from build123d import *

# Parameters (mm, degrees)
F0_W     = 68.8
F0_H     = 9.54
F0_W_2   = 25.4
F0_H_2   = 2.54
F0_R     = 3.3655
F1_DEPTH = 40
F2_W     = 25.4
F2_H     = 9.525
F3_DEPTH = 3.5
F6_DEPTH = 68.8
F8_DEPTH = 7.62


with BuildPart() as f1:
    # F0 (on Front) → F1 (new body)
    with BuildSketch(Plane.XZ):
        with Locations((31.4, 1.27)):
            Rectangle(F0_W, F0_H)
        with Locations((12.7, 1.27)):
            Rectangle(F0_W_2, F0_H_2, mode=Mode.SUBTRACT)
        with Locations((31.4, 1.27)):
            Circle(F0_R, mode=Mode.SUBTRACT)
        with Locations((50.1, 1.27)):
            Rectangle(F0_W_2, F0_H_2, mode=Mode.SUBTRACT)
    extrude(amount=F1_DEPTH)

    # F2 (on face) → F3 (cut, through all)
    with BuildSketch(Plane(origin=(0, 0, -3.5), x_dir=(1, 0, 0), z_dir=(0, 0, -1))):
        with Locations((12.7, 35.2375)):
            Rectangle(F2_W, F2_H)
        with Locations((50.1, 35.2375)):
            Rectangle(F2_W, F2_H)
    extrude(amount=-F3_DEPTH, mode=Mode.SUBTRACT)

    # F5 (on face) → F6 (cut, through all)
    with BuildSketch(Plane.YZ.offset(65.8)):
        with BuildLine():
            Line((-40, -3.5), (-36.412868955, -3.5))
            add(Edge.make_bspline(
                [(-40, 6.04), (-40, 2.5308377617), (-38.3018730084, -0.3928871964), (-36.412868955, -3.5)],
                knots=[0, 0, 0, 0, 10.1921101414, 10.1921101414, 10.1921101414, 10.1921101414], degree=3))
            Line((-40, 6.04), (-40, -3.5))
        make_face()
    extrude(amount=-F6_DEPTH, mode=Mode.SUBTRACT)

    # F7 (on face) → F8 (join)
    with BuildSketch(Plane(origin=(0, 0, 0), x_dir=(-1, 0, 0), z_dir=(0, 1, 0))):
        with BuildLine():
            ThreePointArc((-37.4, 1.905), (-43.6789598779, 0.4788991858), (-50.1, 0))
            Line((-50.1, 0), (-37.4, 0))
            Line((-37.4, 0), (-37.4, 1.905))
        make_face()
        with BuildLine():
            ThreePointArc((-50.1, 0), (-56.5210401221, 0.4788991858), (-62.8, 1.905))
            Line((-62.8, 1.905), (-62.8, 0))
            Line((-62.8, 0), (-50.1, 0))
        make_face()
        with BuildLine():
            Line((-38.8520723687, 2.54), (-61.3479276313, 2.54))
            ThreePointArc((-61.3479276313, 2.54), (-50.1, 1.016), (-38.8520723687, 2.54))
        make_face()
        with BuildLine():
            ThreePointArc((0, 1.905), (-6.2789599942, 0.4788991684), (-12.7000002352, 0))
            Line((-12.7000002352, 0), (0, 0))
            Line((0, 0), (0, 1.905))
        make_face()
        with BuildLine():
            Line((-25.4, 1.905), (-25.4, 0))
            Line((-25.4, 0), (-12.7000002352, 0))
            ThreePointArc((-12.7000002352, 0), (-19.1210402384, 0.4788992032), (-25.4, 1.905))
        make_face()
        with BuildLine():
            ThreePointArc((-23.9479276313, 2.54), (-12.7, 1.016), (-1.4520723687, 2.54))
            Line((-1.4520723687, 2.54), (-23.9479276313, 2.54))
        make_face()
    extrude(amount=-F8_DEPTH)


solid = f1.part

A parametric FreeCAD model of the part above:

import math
import FreeCAD as App
import Part
import Sketcher

V = App.Vector
Q = App.Units.Quantity

doc = App.newDocument("Part")
params = doc.addObject("Spreadsheet::Sheet", "Params")
for row, (alias, value) in enumerate([
    ("sketch1_width", "1 in"),
    ("sketch1_diameter", "0.265 in"),
    ("sketch1_height", "0.1 in"),
    ("pad1_length", "40 mm"),
    ("sketch2_width", "1 in"),
    ("sketch2_height", "0.375 in"),
    ("pocket1_length", "3.5 mm"),
    ("sketch4_width", "0.5 in"),
    ("sketch4_height", "0.075 in"),
    ("pad2_length", "0.3 in"),
], start=1):
    params.set(f"A{row}", alias)
    params.set(f"B{row}", "=" + value)
    params.setAlias(f"B{row}", alias)

body = doc.addObject("PartDesign::Body", "Body")

# Sketch on XZ plane
sketch1 = body.newObject("Sketcher::SketchObject", "Sketch")
sketch1.AttachmentSupport = (doc.getObject("XZ_Plane"), [""])
sketch1.MapMode = "FlatFace"
sketch1.addGeometry([
    Part.LineSegment(V(-3, 6.04, 0), V(-3, -3.5, 0)),  # 0
    Part.LineSegment(V(-3, -3.5, 0), V(65.8, -3.5, 0)),  # 1
    Part.LineSegment(V(65.8, -3.5, 0), V(65.8, 6.04, 0)),  # 2
    Part.LineSegment(V(65.8, 6.04, 0), V(-3, 6.04, 0)),  # 3
    Part.LineSegment(V(25.4, 0, 0), V(0, 0, 0)),  # 4
    Part.LineSegment(V(0, 0, 0), V(0, 2.54, 0)),  # 5
    Part.LineSegment(V(0, 2.54, 0), V(25.4, 2.54, 0)),  # 6
    Part.LineSegment(V(25.4, 2.54, 0), V(25.4, 0, 0)),  # 7
    Part.Circle(V(31.4, 1.27, 0), V(0, 0, 1), 3.3655),  # 8
    Part.LineSegment(V(62.8, 0, 0), V(37.4, 0, 0)),  # 9
    Part.LineSegment(V(37.4, 0, 0), V(37.4, 2.54, 0)),  # 10
    Part.LineSegment(V(37.4, 2.54, 0), V(62.8, 2.54, 0)),  # 11
    Part.LineSegment(V(62.8, 2.54, 0), V(62.8, 0, 0)),  # 12
], False)
sketch1.addConstraint([
    Sketcher.Constraint("Coincident", 0, 2, 1, 1),
    Sketcher.Constraint("Coincident", 1, 2, 2, 1),
    Sketcher.Constraint("Coincident", 2, 2, 3, 1),
    Sketcher.Constraint("Coincident", 3, 2, 0, 1),
    Sketcher.Constraint("Coincident", 4, 2, 5, 1),
    Sketcher.Constraint("Coincident", 5, 2, 6, 1),
    Sketcher.Constraint("Coincident", 6, 2, 7, 1),
    Sketcher.Constraint("Coincident", 7, 2, 4, 1),
    Sketcher.Constraint("Coincident", 9, 2, 10, 1),
    Sketcher.Constraint("Coincident", 10, 2, 11, 1),
    Sketcher.Constraint("Coincident", 11, 2, 12, 1),
    Sketcher.Constraint("Coincident", 12, 2, 9, 1),
    Sketcher.Constraint("Vertical", 0),
    Sketcher.Constraint("Horizontal", 1),
    Sketcher.Constraint("Vertical", 2),
    Sketcher.Constraint("Horizontal", 3),
    Sketcher.Constraint("Horizontal", 4),
    Sketcher.Constraint("Vertical", 5),
    Sketcher.Constraint("Horizontal", 6),
    Sketcher.Constraint("Vertical", 7),
    Sketcher.Constraint("Horizontal", 9),
    Sketcher.Constraint("Vertical", 10),
    Sketcher.Constraint("Horizontal", 11),
    Sketcher.Constraint("Vertical", 12),
    Sketcher.Constraint("Coincident", 4, 2, -1, 1),
    Sketcher.Constraint("PointOnObject", 9, 2, -1),
    Sketcher.Constraint("Horizontal", 6, 2, 10, 2),
    Sketcher.Constraint("Equal", 6, 9),
    Sketcher.Constraint("DistanceX", 4, 2, 4, 1, Q("1 in")),
    Sketcher.Constraint("Diameter", 8, Q("0.265 in")),
    Sketcher.Constraint("DistanceY", 5, 1, 5, 2, Q("0.1 in")),
    Sketcher.Constraint("DistanceY", -1, 1, 8, 3, Q("0.05 in")),
    Sketcher.Constraint("DistanceX", 1, 1, 1, 2, Q("68.8 mm")),
    Sketcher.Constraint("DistanceY", 0, 2, 0, 1, Q("9.54 mm")),
    Sketcher.Constraint("DistanceX", -1, 1, 8, 3, Q("31.4 mm")),
    Sketcher.Constraint("DistanceX", 0, 2, -1, 1, Q("3 mm")),
    Sketcher.Constraint("DistanceY", 0, 2, -1, 1, Q("3.5 mm")),
    Sketcher.Constraint("DistanceX", -1, 1, 9, 2, Q("37.4 mm")),
])
sketch1.setExpression("Constraints[28]", "Params.sketch1_width")
sketch1.setExpression("Constraints[29]", "Params.sketch1_diameter")
sketch1.setExpression("Constraints[30]", "Params.sketch1_height")
pad1 = body.newObject("PartDesign::Pad", "Pad")
pad1.Profile = sketch1
pad1.setExpression("Length", "Params.pad1_length")

# Sketch on XY plane
sketch2 = body.newObject("Sketcher::SketchObject", "Sketch001")
sketch2.AttachmentSupport = (doc.getObject("XY_Plane"), [""])
sketch2.MapMode = "FlatFace"
sketch2.AttachmentOffset = App.Placement(V(0, 0, -3.5), App.Rotation())
sketch2.addGeometry([
    Part.LineSegment(V(0, -40, 0), V(0, -30.475, 0)),  # 0
    Part.LineSegment(V(0, -30.475, 0), V(25.4, -30.475, 0)),  # 1
    Part.LineSegment(V(25.4, -30.475, 0), V(25.4, -40, 0)),  # 2
    Part.LineSegment(V(25.4, -40, 0), V(0, -40, 0)),  # 3
    Part.LineSegment(V(37.4, -40, 0), V(37.4, -30.475, 0)),  # 4
    Part.LineSegment(V(37.4, -30.475, 0), V(62.8, -30.475, 0)),  # 5
    Part.LineSegment(V(62.8, -30.475, 0), V(62.8, -40, 0)),  # 6
    Part.LineSegment(V(62.8, -40, 0), V(37.4, -40, 0)),  # 7
], False)
sketch2.addConstraint([
    Sketcher.Constraint("Coincident", 0, 2, 1, 1),
    Sketcher.Constraint("Coincident", 1, 2, 2, 1),
    Sketcher.Constraint("Coincident", 2, 2, 3, 1),
    Sketcher.Constraint("Coincident", 3, 2, 0, 1),
    Sketcher.Constraint("Coincident", 4, 2, 5, 1),
    Sketcher.Constraint("Coincident", 5, 2, 6, 1),
    Sketcher.Constraint("Coincident", 6, 2, 7, 1),
    Sketcher.Constraint("Coincident", 7, 2, 4, 1),
    Sketcher.Constraint("Vertical", 0),
    Sketcher.Constraint("Horizontal", 1),
    Sketcher.Constraint("Vertical", 2),
    Sketcher.Constraint("Horizontal", 3),
    Sketcher.Constraint("Vertical", 4),
    Sketcher.Constraint("Horizontal", 5),
    Sketcher.Constraint("Vertical", 6),
    Sketcher.Constraint("Horizontal", 7),
    Sketcher.Constraint("PointOnObject", 0, 2, -2),
    Sketcher.Constraint("Horizontal", 1, 2, 4, 2),
    Sketcher.Constraint("Horizontal", 3, 2, 6, 2),
    Sketcher.Constraint("Equal", 3, 5),
    Sketcher.Constraint("DistanceX", 1, 1, 1, 2, Q("1 in")),
    Sketcher.Constraint("DistanceY", 0, 1, 0, 2, Q("0.375 in")),
    Sketcher.Constraint("DistanceY", 0, 2, -1, 1, Q("30.475 mm")),
    Sketcher.Constraint("DistanceX", -1, 1, 4, 2, Q("37.4 mm")),
])
sketch2.setExpression("Constraints[20]", "Params.sketch2_width")
sketch2.setExpression("Constraints[21]", "Params.sketch2_height")
pocket1 = body.newObject("PartDesign::Pocket", "Pocket")
pocket1.Profile = sketch2
pocket1.setExpression("Length", "Params.pocket1_length")
pocket1.Reversed = True

# Sketch on YZ plane
sketch3 = body.newObject("Sketcher::SketchObject", "Sketch002")
sketch3.AttachmentSupport = (doc.getObject("YZ_Plane"), [""])
sketch3.MapMode = "FlatFace"
sketch3.AttachmentOffset = App.Placement(V(0, 0, 65.8), App.Rotation())
sketch3.addGeometry([
    Part.LineSegment(V(-40, -3.5, 0), V(-36.412869, -3.5, 0)),
    Part.BSplineCurve([V(-40, 6.04, 0), V(-40, 2.530838, 0), V(-38.301873, -0.392887, 0), V(-36.412869, -3.5, 0)], [4, 4], [0, 10.192110141], False, 3, [1, 1, 1, 1], False),
    Part.LineSegment(V(-40, 6.04, 0), V(-40, -3.5, 0)),
], False)
sketch3.addConstraint([
    Sketcher.Constraint("Block", 1),
    Sketcher.Constraint("Coincident", 0, 2, 1, 2),
    Sketcher.Constraint("Coincident", 1, 1, 2, 1),
    Sketcher.Constraint("Coincident", 2, 2, 0, 1),
    Sketcher.Constraint("Horizontal", 0),
    Sketcher.Constraint("Vertical", 2),
])
pocket2 = body.newObject("PartDesign::Pocket", "Pocket001")
pocket2.Profile = sketch3
pocket2.Type = "ThroughAll"

# Sketch on XZ plane
sketch4 = body.newObject("Sketcher::SketchObject", "Sketch003")
sketch4.AttachmentSupport = (doc.getObject("XZ_Plane"), [""])
sketch4.MapMode = "FlatFace"
sketch4.addGeometry([
    Part.ArcOfCircle(Part.Circle(V(50.1, 43.285833, 0), V(0, 0, 1), 43.285833), math.radians(-107.061531), math.radians(-90)),  # 0
    Part.LineSegment(V(50.1, 0, 0), V(37.4, 0, 0)),  # 1
    Part.LineSegment(V(37.4, 0, 0), V(37.4, 1.905, 0)),  # 2
    Part.ArcOfCircle(Part.Circle(V(50.1, 43.285833, 0), V(0, 0, 1), 43.285833), math.radians(-90), math.radians(-72.938469)),  # 3
    Part.LineSegment(V(62.8, 1.905, 0), V(62.8, 0, 0)),  # 4
    Part.LineSegment(V(62.8, 0, 0), V(50.1, 0, 0)),  # 5
    Part.LineSegment(V(38.852072, 2.54, 0), V(61.347928, 2.54, 0)),  # 6
    Part.ArcOfCircle(Part.Circle(V(50.1, 43.285833, 0), V(0, 0, 1), 42.269833), math.radians(-105.43222), math.radians(-74.56778)),  # 7
    Part.ArcOfCircle(Part.Circle(V(12.7, 43.285833, 0), V(0, 0, 1), 43.285833), math.radians(-107.061531), math.radians(-90)),  # 8
    Part.LineSegment(V(12.7, 0, 0), V(0, 0, 0)),  # 9
    Part.LineSegment(V(0, 0, 0), V(0, 1.905, 0)),  # 10
    Part.LineSegment(V(25.4, 1.905, 0), V(25.4, 0, 0)),  # 11
    Part.LineSegment(V(25.4, 0, 0), V(12.7, 0, 0)),  # 12
    Part.ArcOfCircle(Part.Circle(V(12.7, 43.285833, 0), V(0, 0, 1), 43.285833), math.radians(-90), math.radians(-72.938469)),  # 13
    Part.ArcOfCircle(Part.Circle(V(12.7, 43.285833, 0), V(0, 0, 1), 42.269833), math.radians(-105.43222), math.radians(-74.56778)),  # 14
    Part.LineSegment(V(1.452072, 2.54, 0), V(23.947928, 2.54, 0)),  # 15
], False)
sketch4.addConstraint([
    Sketcher.Constraint("Tangent", 0, 2, 1, 1),
    Sketcher.Constraint("Coincident", 1, 2, 2, 1),
    Sketcher.Constraint("Coincident", 2, 2, 0, 1),
    Sketcher.Constraint("Coincident", 3, 2, 4, 1),
    Sketcher.Constraint("Coincident", 4, 2, 5, 1),
    Sketcher.Constraint("Tangent", 5, 2, 3, 1),
    Sketcher.Constraint("Coincident", 6, 1, 7, 1),
    Sketcher.Constraint("Coincident", 7, 2, 6, 2),
    Sketcher.Constraint("Tangent", 8, 2, 9, 1),
    Sketcher.Constraint("Coincident", 9, 2, 10, 1),
    Sketcher.Constraint("Coincident", 10, 2, 8, 1),
    Sketcher.Constraint("Coincident", 11, 2, 12, 1),
    Sketcher.Constraint("Tangent", 12, 2, 13, 1),
    Sketcher.Constraint("Coincident", 13, 2, 11, 1),
    Sketcher.Constraint("Coincident", 14, 1, 15, 1),
    Sketcher.Constraint("Coincident", 15, 2, 14, 2),
    Sketcher.Constraint("Horizontal", 1),
    Sketcher.Constraint("Vertical", 2),
    Sketcher.Constraint("Vertical", 4),
    Sketcher.Constraint("Horizontal", 5),
    Sketcher.Constraint("Horizontal", 6),
    Sketcher.Constraint("Horizontal", 9),
    Sketcher.Constraint("Vertical", 10),
    Sketcher.Constraint("Vertical", 11),
    Sketcher.Constraint("Horizontal", 12),
    Sketcher.Constraint("Horizontal", 15),
    Sketcher.Constraint("Coincident", 9, 2, -1, 1),
    Sketcher.Constraint("Coincident", 3, 3, 0, 3),
    Sketcher.Constraint("Coincident", 7, 3, 0, 3),
    Sketcher.Constraint("Coincident", 13, 3, 8, 3),
    Sketcher.Constraint("Coincident", 14, 3, 8, 3),
    Sketcher.Constraint("Equal", 0, 3),
    Sketcher.Constraint("Equal", 3, 8),
    Sketcher.Constraint("Equal", 8, 13),
    Sketcher.Constraint("Equal", 7, 14),
    Sketcher.Constraint("PointOnObject", 0, 2, -1),
    Sketcher.Constraint("Horizontal", 2, 2, 3, 2),
    Sketcher.Constraint("Horizontal", 3, 2, 10, 2),
    Sketcher.Constraint("Horizontal", 10, 2, 13, 2),
    Sketcher.Constraint("Horizontal", 7, 2, 14, 1),
    Sketcher.Constraint("DistanceX", 1, 2, 1, 1, Q("0.5 in")),
    Sketcher.Constraint("DistanceY", -1, 1, 6, 1, Q("0.1 in")),
    Sketcher.Constraint("DistanceY", 2, 1, 2, 2, Q("0.075 in")),
    Sketcher.Constraint("Radius", 7, Q("42.269833 mm")),
    Sketcher.Constraint("DistanceX", -1, 1, 0, 3, Q("50.1 mm")),
])
sketch4.setExpression("Constraints[40]", "Params.sketch4_width")
sketch4.setExpression("Constraints[42]", "Params.sketch4_height")
pad2 = body.newObject("PartDesign::Pad", "Pad001")
pad2.Profile = sketch4
pad2.setExpression("Length", "Params.pad2_length")

doc.recompute()
